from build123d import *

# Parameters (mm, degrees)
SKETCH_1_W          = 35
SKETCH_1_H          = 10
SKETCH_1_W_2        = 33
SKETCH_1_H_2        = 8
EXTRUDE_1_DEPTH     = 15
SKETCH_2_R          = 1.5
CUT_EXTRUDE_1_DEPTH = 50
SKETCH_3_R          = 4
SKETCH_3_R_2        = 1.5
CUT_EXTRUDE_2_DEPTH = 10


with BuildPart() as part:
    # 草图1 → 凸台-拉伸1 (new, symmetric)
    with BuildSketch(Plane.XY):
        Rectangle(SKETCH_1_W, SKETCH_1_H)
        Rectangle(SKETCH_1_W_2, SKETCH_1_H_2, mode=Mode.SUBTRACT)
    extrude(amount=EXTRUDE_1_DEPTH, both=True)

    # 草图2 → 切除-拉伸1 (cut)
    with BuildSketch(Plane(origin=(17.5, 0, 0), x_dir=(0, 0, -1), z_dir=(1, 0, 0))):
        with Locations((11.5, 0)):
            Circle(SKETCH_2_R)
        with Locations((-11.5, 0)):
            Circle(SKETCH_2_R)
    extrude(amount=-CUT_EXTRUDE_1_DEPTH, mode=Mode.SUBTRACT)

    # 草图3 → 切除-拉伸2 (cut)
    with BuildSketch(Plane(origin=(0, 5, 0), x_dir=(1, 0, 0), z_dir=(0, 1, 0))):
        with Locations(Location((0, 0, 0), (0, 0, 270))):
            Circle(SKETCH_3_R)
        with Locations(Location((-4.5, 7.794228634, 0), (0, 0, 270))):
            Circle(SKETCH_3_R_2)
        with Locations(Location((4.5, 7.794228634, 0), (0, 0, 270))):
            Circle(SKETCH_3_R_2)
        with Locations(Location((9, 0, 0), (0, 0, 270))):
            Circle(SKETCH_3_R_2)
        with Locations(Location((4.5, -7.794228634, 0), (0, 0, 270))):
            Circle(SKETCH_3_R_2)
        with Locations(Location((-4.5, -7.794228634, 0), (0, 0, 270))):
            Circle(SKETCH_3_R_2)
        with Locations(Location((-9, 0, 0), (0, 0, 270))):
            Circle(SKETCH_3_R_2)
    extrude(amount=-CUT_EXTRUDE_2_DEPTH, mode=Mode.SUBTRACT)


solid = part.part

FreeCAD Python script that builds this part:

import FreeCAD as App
import Part
import Sketcher

doc = App.newDocument("Part")
body = doc.addObject("PartDesign::Body", "Body")

sketch1 = body.newObject("Sketcher::SketchObject", "Sketch")
sketch1.AttachmentSupport = (doc.getObject("XY_Plane"), [""])
sketch1.MapMode = "FlatFace"
sketch1.addGeometry(Part.LineSegment(App.Vector(-18, 5, 0), App.Vector(-18, -5, 0)), False)
sketch1.addGeometry(Part.LineSegment(App.Vector(-18, -5, 0), App.Vector(18, -5, 0)), False)
sketch1.addGeometry(Part.LineSegment(App.Vector(18, -5, 0), App.Vector(18, 5, 0)), False)
sketch1.addGeometry(Part.LineSegment(App.Vector(18, 5, 0), App.Vector(-18, 5, 0)), False)
sketch1.addGeometry(Part.LineSegment(App.Vector(16, -4, 0), App.Vector(-16, -4, 0)), False)
sketch1.addGeometry(Part.LineSegment(App.Vector(-16, -4, 0), App.Vector(-16, 4, 0)), False)
sketch1.addGeometry(Part.LineSegment(App.Vector(-16, 4, 0), App.Vector(16, 4, 0)), False)
sketch1.addGeometry(Part.LineSegment(App.Vector(16, 4, 0), App.Vector(16, -4, 0)), False)
sketch1.addConstraint(Sketcher.Constraint("Coincident", 0, 2, 1, 1))
sketch1.addConstraint(Sketcher.Constraint("Coincident", 1, 2, 2, 1))
sketch1.addConstraint(Sketcher.Constraint("Coincident", 2, 2, 3, 1))
sketch1.addConstraint(Sketcher.Constraint("Coincident", 3, 2, 0, 1))
sketch1.addConstraint(Sketcher.Constraint("Coincident", 4, 2, 5, 1))
sketch1.addConstraint(Sketcher.Constraint("Coincident", 5, 2, 6, 1))
sketch1.addConstraint(Sketcher.Constraint("Coincident", 6, 2, 7, 1))
sketch1.addConstraint(Sketcher.Constraint("Coincident", 7, 2, 4, 1))
sketch1.addConstraint(Sketcher.Constraint("Vertical", 0))
sketch1.addConstraint(Sketcher.Constraint("Horizontal", 1))
sketch1.addConstraint(Sketcher.Constraint("Vertical", 2))
sketch1.addConstraint(Sketcher.Constraint("Horizontal", 3))
sketch1.addConstraint(Sketcher.Constraint("Horizontal", 4))
sketch1.addConstraint(Sketcher.Constraint("Vertical", 5))
sketch1.addConstraint(Sketcher.Constraint("Horizontal", 6))
sketch1.addConstraint(Sketcher.Constraint("Vertical", 7))
sketch1.addConstraint(Sketcher.Constraint("Symmetric", 0, 2, 2, 2, -1, 1))
sketch1.addConstraint(Sketcher.Constraint("Symmetric", 4, 2, 6, 2, -1, 1))
sketch1.addConstraint(Sketcher.Constraint("DistanceX", 1, 1, 1, 2, 35.0))
sketch1.addConstraint(Sketcher.Constraint("DistanceX", 4, 2, 4, 1, 33.0))
sketch1.addConstraint(Sketcher.Constraint("DistanceY", 0, 2, 0, 1, 10.0))
sketch1.addConstraint(Sketcher.Constraint("DistanceY", 5, 1, 5, 2, 8.0))
pad1 = body.newObject("PartDesign::Pad", "Pad")
pad1.Profile = sketch1
pad1.Length = 30
pad1.Midplane = True

sketch2 = body.newObject("Sketcher::SketchObject", "Sketch001")
sketch2.AttachmentSupport = (doc.getObject("YZ_Plane"), [""])
sketch2.MapMode = "FlatFace"
sketch2.AttachmentOffset = App.Placement(App.Vector(0, 0, 17.5), App.Rotation())
sketch2.addGeometry(Part.Circle(App.Vector(0, -11.5, 0), App.Vector(0, 0, 1), 1.5), False)
sketch2.addGeometry(Part.Circle(App.Vector(0, 11.5, 0), App.Vector(0, 0, 1), 1.5), False)
sketch2.addConstraint(Sketcher.Constraint("Equal", 0, 1))
sketch2.addConstraint(Sketcher.Constraint("Symmetric", 0, 3, 1, 3, -1, 1))
sketch2.addConstraint(Sketcher.Constraint("PointOnObject", 0, 3, -2))
sketch2.addConstraint(Sketcher.Constraint("Diameter", 0, 3.0))
sketch2.addConstraint(Sketcher.Constraint("DistanceY", 0, 3, 1, 3, 23.0))
pocket1 = body.newObject("PartDesign::Pocket", "Pocket")
pocket1.Profile = sketch2
pocket1.Length = 50

sketch3 = body.newObject("Sketcher::SketchObject", "Sketch002")
sketch3.AttachmentSupport = (doc.getObject("XZ_Plane"), [""])
sketch3.MapMode = "FlatFace"
sketch3.AttachmentOffset = App.Placement(App.Vector(0, 0, -5), App.Rotation())
sketch3.addGeometry(Part.Circle(App.Vector(0, 0, 0), App.Vector(0, 0, 1), 4), False)
sketch3.addGeometry(Part.Circle(App.Vector(-4.5, -7.8, 0), App.Vector(0, 0, 1), 1.5), False)
sketch3.addGeometry(Part.Circle(App.Vector(4.5, -7.8, 0), App.Vector(0, 0, 1), 1.5), False)
sketch3.addGeometry(Part.Circle(App.Vector(9, 0, 0), App.Vector(0, 0, 1), 1.5), False)
sketch3.addGeometry(Part.Circle(App.Vector(4.5, 7.8, 0), App.Vector(0, 0, 1), 1.5), False)
sketch3.addGeometry(Part.Circle(App.Vector(-4.5, 7.8, 0), App.Vector(0, 0, 1), 1.5), False)
sketch3.addGeometry(Part.Circle(App.Vector(-9, 0, 0), App.Vector(0, 0, 1), 1.5), False)
sketch3.addConstraint(Sketcher.Constraint("Coincident", 0, 3, -1, 1))
sketch3.addConstraint(Sketcher.Constraint("Equal", 1, 2))
sketch3.addConstraint(Sketcher.Constraint("Equal", 2, 3))
sketch3.addConstraint(Sketcher.Constraint("Equal", 3, 4))
sketch3.addConstraint(Sketcher.Constraint("Equal", 4, 5))
sketch3.addConstraint(Sketcher.Constraint("Equal", 5, 6))
sketch3.addConstraint(Sketcher.Constraint("Symmetric", 1, 3, 4, 3, -1, 1))
sketch3.addConstraint(Sketcher.Constraint("Symmetric", 2, 3, 5, 3, -1, 1))
sketch3.addConstraint(Sketcher.Constraint("Symmetric", 3, 3, 6, 3, -1, 1))
sketch3.addConstraint(Sketcher.Constraint("Symmetric", 1, 3, 2, 3, -2))
sketch3.addConstraint(Sketcher.Constraint("PointOnObject", 3, 3, -1))
sketch3.addConstraint(Sketcher.Constraint("Diameter", 0, 8.0))
sketch3.addConstraint(Sketcher.Constraint("Diameter", 1, 3.0))
sketch3.addConstraint(Sketcher.Constraint("DistanceX", -1, 1, 3, 3, 9.0))
sketch3.addConstraint(Sketcher.Constraint("DistanceX", 1, 3, 2, 3, 9.0))
sketch3.addConstraint(Sketcher.Constraint("DistanceY", 1, 3, -1, 1, 7.794229))
pocket2 = body.newObject("PartDesign::Pocket", "Pocket001")
pocket2.Profile = sketch3
pocket2.Length = 10
pocket2.Reversed = True

doc.recompute()
